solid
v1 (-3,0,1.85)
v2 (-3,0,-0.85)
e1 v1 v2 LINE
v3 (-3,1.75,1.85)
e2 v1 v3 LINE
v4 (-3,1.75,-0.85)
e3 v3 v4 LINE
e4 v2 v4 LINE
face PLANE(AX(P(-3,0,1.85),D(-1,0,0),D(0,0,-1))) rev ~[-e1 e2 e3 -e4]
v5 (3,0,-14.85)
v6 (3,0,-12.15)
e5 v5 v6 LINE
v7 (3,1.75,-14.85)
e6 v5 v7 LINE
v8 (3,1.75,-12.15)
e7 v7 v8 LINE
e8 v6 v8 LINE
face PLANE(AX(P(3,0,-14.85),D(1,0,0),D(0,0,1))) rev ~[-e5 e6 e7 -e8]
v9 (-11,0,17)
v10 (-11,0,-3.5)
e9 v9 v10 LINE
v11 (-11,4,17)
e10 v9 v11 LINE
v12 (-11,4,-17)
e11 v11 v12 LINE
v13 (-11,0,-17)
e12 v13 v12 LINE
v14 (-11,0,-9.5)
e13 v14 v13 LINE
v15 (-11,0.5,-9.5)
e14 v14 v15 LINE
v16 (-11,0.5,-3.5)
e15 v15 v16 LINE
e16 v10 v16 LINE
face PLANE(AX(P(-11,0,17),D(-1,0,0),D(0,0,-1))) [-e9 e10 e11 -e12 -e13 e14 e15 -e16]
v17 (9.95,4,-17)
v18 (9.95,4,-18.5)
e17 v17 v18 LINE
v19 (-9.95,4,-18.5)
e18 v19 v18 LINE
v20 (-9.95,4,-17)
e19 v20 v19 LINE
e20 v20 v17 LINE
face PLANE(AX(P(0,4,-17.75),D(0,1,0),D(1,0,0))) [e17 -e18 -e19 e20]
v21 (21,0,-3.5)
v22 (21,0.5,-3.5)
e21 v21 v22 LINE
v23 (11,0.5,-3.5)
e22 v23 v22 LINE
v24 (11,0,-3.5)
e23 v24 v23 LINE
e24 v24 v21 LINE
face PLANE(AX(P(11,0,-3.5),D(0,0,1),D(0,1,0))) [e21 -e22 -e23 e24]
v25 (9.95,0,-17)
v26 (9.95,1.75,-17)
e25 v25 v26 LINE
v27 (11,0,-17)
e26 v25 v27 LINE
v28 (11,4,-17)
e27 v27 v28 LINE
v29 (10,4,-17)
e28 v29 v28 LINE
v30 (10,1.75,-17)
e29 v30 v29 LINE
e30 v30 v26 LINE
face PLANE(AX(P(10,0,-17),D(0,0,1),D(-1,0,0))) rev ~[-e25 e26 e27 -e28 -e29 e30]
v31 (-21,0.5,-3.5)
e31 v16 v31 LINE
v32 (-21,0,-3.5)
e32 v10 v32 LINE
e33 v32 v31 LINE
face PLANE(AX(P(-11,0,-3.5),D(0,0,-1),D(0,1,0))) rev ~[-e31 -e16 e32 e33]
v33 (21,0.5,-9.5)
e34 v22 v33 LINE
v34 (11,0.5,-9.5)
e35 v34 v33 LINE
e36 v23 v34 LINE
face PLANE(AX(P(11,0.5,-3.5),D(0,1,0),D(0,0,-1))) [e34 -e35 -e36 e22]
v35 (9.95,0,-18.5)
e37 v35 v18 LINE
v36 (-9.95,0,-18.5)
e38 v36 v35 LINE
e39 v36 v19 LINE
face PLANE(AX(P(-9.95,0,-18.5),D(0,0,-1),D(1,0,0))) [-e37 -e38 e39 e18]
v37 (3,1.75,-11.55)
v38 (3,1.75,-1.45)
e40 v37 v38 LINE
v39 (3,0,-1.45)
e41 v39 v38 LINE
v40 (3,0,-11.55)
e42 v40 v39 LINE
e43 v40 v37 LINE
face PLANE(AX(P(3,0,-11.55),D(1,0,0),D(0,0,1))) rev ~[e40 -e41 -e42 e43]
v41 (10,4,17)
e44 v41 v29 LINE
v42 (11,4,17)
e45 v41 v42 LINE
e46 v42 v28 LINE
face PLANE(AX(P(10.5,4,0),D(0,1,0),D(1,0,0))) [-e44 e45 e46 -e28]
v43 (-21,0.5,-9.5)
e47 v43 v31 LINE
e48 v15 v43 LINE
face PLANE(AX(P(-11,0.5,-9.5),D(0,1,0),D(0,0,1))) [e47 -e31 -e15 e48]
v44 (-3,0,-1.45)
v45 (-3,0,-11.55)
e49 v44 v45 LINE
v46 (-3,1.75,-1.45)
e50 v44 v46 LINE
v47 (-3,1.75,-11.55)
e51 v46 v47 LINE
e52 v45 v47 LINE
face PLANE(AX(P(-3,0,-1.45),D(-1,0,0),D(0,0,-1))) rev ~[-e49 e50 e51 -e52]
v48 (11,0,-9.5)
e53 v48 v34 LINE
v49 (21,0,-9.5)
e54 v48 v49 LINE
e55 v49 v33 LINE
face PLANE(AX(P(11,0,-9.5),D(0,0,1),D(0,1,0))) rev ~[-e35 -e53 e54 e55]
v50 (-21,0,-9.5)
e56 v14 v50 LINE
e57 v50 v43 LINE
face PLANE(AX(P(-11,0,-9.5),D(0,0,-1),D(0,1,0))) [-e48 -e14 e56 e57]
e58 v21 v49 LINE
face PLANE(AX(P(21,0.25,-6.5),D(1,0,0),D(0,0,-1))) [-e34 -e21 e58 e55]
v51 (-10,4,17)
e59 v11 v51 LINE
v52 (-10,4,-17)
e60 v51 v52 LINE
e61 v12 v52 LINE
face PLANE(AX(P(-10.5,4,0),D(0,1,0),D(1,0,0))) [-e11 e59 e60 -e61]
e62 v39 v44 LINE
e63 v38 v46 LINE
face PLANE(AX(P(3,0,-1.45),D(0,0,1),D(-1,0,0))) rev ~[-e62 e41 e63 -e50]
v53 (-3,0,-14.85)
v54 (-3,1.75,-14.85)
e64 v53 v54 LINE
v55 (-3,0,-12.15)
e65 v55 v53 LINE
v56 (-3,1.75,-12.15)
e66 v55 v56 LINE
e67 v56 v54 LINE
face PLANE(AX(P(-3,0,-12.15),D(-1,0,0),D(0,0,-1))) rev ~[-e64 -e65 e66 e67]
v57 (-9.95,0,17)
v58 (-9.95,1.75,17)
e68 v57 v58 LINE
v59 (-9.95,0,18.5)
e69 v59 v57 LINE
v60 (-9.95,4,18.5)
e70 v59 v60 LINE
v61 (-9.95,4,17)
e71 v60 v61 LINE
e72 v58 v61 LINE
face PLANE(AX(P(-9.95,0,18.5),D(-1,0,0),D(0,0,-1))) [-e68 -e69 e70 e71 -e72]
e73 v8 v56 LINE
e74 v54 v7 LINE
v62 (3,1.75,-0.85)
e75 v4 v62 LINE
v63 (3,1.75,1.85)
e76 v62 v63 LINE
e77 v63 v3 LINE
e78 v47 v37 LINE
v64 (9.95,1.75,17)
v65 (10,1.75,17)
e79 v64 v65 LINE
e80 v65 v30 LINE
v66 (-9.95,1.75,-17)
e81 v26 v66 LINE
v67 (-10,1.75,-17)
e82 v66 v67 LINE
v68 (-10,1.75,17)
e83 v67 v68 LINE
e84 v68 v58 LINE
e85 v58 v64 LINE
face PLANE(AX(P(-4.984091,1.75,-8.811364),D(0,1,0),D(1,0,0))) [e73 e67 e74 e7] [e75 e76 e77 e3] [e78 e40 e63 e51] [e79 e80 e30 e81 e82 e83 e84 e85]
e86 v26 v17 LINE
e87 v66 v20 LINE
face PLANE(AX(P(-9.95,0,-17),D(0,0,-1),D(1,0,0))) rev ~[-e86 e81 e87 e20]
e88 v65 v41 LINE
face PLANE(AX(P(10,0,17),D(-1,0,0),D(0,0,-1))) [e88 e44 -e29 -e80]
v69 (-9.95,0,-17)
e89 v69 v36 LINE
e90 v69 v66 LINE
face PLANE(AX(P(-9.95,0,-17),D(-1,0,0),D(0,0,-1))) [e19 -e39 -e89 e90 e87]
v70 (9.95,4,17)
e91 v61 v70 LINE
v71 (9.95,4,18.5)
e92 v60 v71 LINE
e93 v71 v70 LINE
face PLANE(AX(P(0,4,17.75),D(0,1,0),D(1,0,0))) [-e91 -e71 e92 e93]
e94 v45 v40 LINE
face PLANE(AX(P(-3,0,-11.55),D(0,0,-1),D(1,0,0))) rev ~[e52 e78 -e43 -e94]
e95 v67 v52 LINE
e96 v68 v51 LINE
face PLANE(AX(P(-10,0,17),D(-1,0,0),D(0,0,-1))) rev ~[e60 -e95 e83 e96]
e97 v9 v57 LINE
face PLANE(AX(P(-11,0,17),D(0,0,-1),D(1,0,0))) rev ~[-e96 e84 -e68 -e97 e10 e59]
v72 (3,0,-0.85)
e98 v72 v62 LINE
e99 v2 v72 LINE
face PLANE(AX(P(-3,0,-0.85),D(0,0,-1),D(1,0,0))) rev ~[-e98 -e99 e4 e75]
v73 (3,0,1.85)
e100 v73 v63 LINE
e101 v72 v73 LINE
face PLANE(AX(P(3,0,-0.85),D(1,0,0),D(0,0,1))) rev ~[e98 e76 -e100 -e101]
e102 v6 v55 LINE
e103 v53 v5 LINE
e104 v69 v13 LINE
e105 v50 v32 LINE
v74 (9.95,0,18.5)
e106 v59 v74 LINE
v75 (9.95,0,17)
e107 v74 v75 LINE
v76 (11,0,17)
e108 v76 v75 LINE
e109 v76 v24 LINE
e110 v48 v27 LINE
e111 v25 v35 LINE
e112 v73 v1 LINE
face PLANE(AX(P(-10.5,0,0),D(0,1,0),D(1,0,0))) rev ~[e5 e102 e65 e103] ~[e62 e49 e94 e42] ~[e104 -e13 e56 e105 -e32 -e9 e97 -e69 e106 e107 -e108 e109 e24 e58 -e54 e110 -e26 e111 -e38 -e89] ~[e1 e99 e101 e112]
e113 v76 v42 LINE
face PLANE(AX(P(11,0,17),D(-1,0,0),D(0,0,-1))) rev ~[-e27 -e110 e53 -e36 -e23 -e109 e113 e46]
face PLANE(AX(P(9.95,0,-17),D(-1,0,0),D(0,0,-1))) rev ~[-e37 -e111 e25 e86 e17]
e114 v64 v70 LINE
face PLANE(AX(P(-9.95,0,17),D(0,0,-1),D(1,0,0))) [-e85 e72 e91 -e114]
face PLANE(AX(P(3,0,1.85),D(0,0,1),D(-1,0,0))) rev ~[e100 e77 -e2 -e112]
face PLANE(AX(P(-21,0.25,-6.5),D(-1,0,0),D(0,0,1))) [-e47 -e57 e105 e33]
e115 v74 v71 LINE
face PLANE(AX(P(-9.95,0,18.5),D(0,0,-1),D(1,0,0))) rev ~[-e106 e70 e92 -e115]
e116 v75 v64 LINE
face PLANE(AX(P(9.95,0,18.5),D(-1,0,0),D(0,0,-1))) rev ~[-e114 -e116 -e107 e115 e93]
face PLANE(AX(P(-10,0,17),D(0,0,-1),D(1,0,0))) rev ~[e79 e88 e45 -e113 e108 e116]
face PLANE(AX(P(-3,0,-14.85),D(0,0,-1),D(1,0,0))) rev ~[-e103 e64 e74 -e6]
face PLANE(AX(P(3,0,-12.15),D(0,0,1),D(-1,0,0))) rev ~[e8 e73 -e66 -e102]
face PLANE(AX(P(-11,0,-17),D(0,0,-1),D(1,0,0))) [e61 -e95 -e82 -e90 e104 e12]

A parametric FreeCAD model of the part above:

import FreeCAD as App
import Part
import Sketcher
Q = App.Units.Quantity


def add_polygon(sketch, points):
    """Adds a closed chain of lines whose ends are joined by coincident constraints."""
    first, n = sketch.GeometryCount, len(points)
    for a, b in zip(points, points[1:] + points[:1]):
        sketch.addGeometry(Part.LineSegment(App.Vector(*a, 0), App.Vector(*b, 0)), False)
    for i in range(n):
        sketch.addConstraint(Sketcher.Constraint("Coincident", first + i, 2, first + (i + 1) % n, 1))

doc = App.newDocument("Part")
params = doc.addObject("Spreadsheet::Sheet", "Params")
for row, (alias, value) in enumerate([
    ("sketch1_width", "20 mm"),
    ("sketch1_width2", "6 mm"),
    ("sketch1_height", "34 mm"),
    ("sketch1_height2", "2.7 mm"),
    ("sketch1_height3", "10.1 mm"),
    ("pad1_length", "1.75 mm"),
    ("sketch2_width", "1 mm"),
    ("sketch2_height", "34 mm"),
    ("sketch2_width2", "19.9 mm"),
    ("sketch2_height2", "1.5 mm"),
    ("pad2_length", "4 mm"),
    ("sketch3_height", "6 mm"),
    ("sketch3_width", "0.5 mm"),
    ("pad3_length", "10 mm"),
    ("sketch4_height", "6 mm"),
    ("sketch4_width", "0.5 mm"),
    ("pad4_length", "10 mm"),
], start=1):
    params.set(f"A{row}", alias)
    params.set(f"B{row}", "=" + value)
    params.setAlias(f"B{row}", alias)

body = doc.addObject("PartDesign::Body", "Body")

# Sketch on XZ plane
sketch1 = body.newObject("Sketcher::SketchObject", "Sketch")
sketch1.AttachmentSupport = (doc.getObject("XZ_Plane"), [""])
sketch1.MapMode = "FlatFace"
add_polygon(sketch1, [(-10, -17), (-10, 17), (10, 17), (10, -17)])  # lines 0-3
add_polygon(sketch1, [(3, 1.85), (-3, 1.85), (-3, -0.85), (3, -0.85)])  # lines 4-7
add_polygon(sketch1, [(-3, -1.45), (-3, -11.55), (3, -11.55), (3, -1.45)])  # lines 8-11
add_polygon(sketch1, [(-3, -12.15), (-3, -14.85), (3, -14.85), (3, -12.15)])  # lines 12-15
sketch1.addConstraint([
    Sketcher.Constraint("Vertical", 0),
    Sketcher.Constraint("Horizontal", 1),
    Sketcher.Constraint("Vertical", 2),
    Sketcher.Constraint("Horizontal", 3),
    Sketcher.Constraint("Horizontal", 4),
    Sketcher.Constraint("Vertical", 5),
    Sketcher.Constraint("Horizontal", 6),
    Sketcher.Constraint("Vertical", 7),
    Sketcher.Constraint("Vertical", 8),
    Sketcher.Constraint("Horizontal", 9),
    Sketcher.Constraint("Vertical", 10),
    Sketcher.Constraint("Horizontal", 11),
    Sketcher.Constraint("Vertical", 12),
    Sketcher.Constraint("Horizontal", 13),
    Sketcher.Constraint("Vertical", 14),
    Sketcher.Constraint("Horizontal", 15),
    Sketcher.Constraint("Symmetric", 0, 2, 2, 2, -1, 1),
    Sketcher.Constraint("Vertical", 5, 2, 8, 2),
    Sketcher.Constraint("Vertical", 7, 2, 9, 2),
    Sketcher.Constraint("Vertical", 11, 2, 12, 2),
    Sketcher.Constraint("Vertical", 10, 2, 13, 2),
    Sketcher.Constraint("Equal", 7, 12),
    Sketcher.Constraint("DistanceX", 1, 1, 1, 2, Q("20 mm")),
    Sketcher.Constraint("DistanceX", 4, 2, 4, 1, Q("6 mm")),
    Sketcher.Constraint("DistanceY", 0, 1, 0, 2, Q("34 mm")),
    Sketcher.Constraint("DistanceY", 5, 2, 5, 1, Q("2.7 mm")),
    Sketcher.Constraint("DistanceY", 8, 2, 8, 1, Q("10.1 mm")),
    Sketcher.Constraint("DistanceX", 4, 2, -1, 1, Q("3 mm")),
    Sketcher.Constraint("DistanceY", 8, 2, 5, 2, Q("10.7 mm")),
    Sketcher.Constraint("DistanceY", 12, 2, 8, 2, Q("3.3 mm")),
    Sketcher.Constraint("DistanceY", -1, 1, 4, 2, Q("1.85 mm")),
])
sketch1.setExpression("Constraints[38]", "Params.sketch1_width")
sketch1.setExpression("Constraints[39]", "Params.sketch1_width2")
sketch1.setExpression("Constraints[40]", "Params.sketch1_height")
sketch1.setExpression("Constraints[41]", "Params.sketch1_height2")
sketch1.setExpression("Constraints[42]", "Params.sketch1_height3")
pad1 = body.newObject("PartDesign::Pad", "Pad")
pad1.Profile = sketch1
pad1.setExpression("Length", "Params.pad1_length")
pad1.Reversed = True

# Sketch on XZ plane
sketch2 = body.newObject("Sketcher::SketchObject", "Sketch001")
sketch2.AttachmentSupport = (doc.getObject("XZ_Plane"), [""])
sketch2.MapMode = "FlatFace"
add_polygon(sketch2, [(-11, -17), (-11, 17), (-10, 17), (-10, -17)])  # lines 0-3
add_polygon(sketch2, [(10, -17), (10, 17), (11, 17), (11, -17)])  # lines 4-7
add_polygon(sketch2, [(-9.95, -18.5), (-9.95, -17), (9.95, -17), (9.95, -18.5)])  # lines 8-11
add_polygon(sketch2, [(-9.95, 17), (-9.95, 18.5), (9.95, 18.5), (9.95, 17)])  # lines 12-15
sketch2.addConstraint([
    Sketcher.Constraint("Vertical", 0),
    Sketcher.Constraint("Horizontal", 1),
    Sketcher.Constraint("Vertical", 2),
    Sketcher.Constraint("Horizontal", 3),
    Sketcher.Constraint("Vertical", 4),
    Sketcher.Constraint("Horizontal", 5),
    Sketcher.Constraint("Vertical", 6),
    Sketcher.Constraint("Horizontal", 7),
    Sketcher.Constraint("Vertical", 8),
    Sketcher.Constraint("Horizontal", 9),
    Sketcher.Constraint("Vertical", 10),
    Sketcher.Constraint("Horizontal", 11),
    Sketcher.Constraint("Vertical", 12),
    Sketcher.Constraint("Horizontal", 13),
    Sketcher.Constraint("Vertical", 14),
    Sketcher.Constraint("Horizontal", 15),
    Sketcher.Constraint("Symmetric", 2, 2, 4, 2, -1, 1),
    Sketcher.Constraint("Symmetric", 0, 2, 6, 2, -1, 1),
    Sketcher.Constraint("Symmetric", 10, 2, 12, 2, -1, 1),
    Sketcher.Constraint("Symmetric", 8, 2, 14, 2, -1, 1),
    Sketcher.Constraint("Horizontal", 1, 2, 4, 2),
    Sketcher.Constraint("Horizontal", 7, 2, 8, 2),
    Sketcher.Constraint("Vertical", 11, 2, 12, 2),
    Sketcher.Constraint("DistanceX", 1, 1, 1, 2, Q("1 mm")),
    Sketcher.Constraint("DistanceY", 0, 1, 0, 2, Q("34 mm")),
    Sketcher.Constraint("DistanceX", 9, 1, 9, 2, Q("19.9 mm")),
    Sketcher.Constraint("DistanceY", 8, 1, 8, 2, Q("1.5 mm")),
    Sketcher.Constraint("DistanceX", 0, 2, -1, 1, Q("11 mm")),
])
sketch2.setExpression("Constraints[39]", "Params.sketch2_width")
sketch2.setExpression("Constraints[40]", "Params.sketch2_height")
sketch2.setExpression("Constraints[41]", "Params.sketch2_width2")
sketch2.setExpression("Constraints[42]", "Params.sketch2_height2")
pad2 = body.newObject("PartDesign::Pad", "Pad001")
pad2.Profile = sketch2
pad2.setExpression("Length", "Params.pad2_length")
pad2.Reversed = True

# Sketch on YZ plane
sketch3 = body.newObject("Sketcher::SketchObject", "Sketch002")
sketch3.AttachmentSupport = (doc.getObject("YZ_Plane"), [""])
sketch3.MapMode = "FlatFace"
sketch3.AttachmentOffset = App.Placement(App.Vector(0, 0, -11), App.Rotation())
add_polygon(sketch3, [(0.5, -9.5), (0, -9.5), (0, -3.5), (0.5, -3.5)])  # lines 0-3
sketch3.addConstraint([
    Sketcher.Constraint("Horizontal", 0),
    Sketcher.Constraint("Vertical", 1),
    Sketcher.Constraint("Horizontal", 2),
    Sketcher.Constraint("Vertical", 3),
    Sketcher.Constraint("PointOnObject", 0, 2, -2),
    Sketcher.Constraint("DistanceY", 1, 1, 1, 2, Q("6 mm")),
    Sketcher.Constraint("DistanceX", 0, 2, 0, 1, Q("0.5 mm")),
    Sketcher.Constraint("DistanceY", 0, 2, -1, 1, Q("9.5 mm")),
])
sketch3.setExpression("Constraints[9]", "Params.sketch3_height")
sketch3.setExpression("Constraints[10]", "Params.sketch3_width")
pad3 = body.newObject("PartDesign::Pad", "Pad002")
pad3.Profile = sketch3
pad3.setExpression("Length", "Params.pad3_length")
pad3.Reversed = True

# Sketch on YZ plane
sketch4 = body.newObject("Sketcher::SketchObject", "Sketch003")
sketch4.AttachmentSupport = (doc.getObject("YZ_Plane"), [""])
sketch4.MapMode = "FlatFace"
sketch4.AttachmentOffset = App.Placement(App.Vector(0, 0, 11), App.Rotation())
add_polygon(sketch4, [(0.5, -3.5), (0, -3.5), (0, -9.5), (0.5, -9.5)])  # lines 0-3
sketch4.addConstraint([
    Sketcher.Constraint("Horizontal", 0),
    Sketcher.Constraint("Vertical", 1),
    Sketcher.Constraint("Horizontal", 2),
    Sketcher.Constraint("Vertical", 3),
    Sketcher.Constraint("PointOnObject", 0, 2, -2),
    Sketcher.Constraint("DistanceY", 1, 2, 1, 1, Q("6 mm")),
    Sketcher.Constraint("DistanceX", 0, 2, 0, 1, Q("0.5 mm")),
    Sketcher.Constraint("DistanceY", 0, 2, -1, 1, Q("3.5 mm")),
])
sketch4.setExpression("Constraints[9]", "Params.sketch4_height")
sketch4.setExpression("Constraints[10]", "Params.sketch4_width")
pad4 = body.newObject("PartDesign::Pad", "Pad003")
pad4.Profile = sketch4
pad4.setExpression("Length", "Params.pad4_length")

doc.recompute()
